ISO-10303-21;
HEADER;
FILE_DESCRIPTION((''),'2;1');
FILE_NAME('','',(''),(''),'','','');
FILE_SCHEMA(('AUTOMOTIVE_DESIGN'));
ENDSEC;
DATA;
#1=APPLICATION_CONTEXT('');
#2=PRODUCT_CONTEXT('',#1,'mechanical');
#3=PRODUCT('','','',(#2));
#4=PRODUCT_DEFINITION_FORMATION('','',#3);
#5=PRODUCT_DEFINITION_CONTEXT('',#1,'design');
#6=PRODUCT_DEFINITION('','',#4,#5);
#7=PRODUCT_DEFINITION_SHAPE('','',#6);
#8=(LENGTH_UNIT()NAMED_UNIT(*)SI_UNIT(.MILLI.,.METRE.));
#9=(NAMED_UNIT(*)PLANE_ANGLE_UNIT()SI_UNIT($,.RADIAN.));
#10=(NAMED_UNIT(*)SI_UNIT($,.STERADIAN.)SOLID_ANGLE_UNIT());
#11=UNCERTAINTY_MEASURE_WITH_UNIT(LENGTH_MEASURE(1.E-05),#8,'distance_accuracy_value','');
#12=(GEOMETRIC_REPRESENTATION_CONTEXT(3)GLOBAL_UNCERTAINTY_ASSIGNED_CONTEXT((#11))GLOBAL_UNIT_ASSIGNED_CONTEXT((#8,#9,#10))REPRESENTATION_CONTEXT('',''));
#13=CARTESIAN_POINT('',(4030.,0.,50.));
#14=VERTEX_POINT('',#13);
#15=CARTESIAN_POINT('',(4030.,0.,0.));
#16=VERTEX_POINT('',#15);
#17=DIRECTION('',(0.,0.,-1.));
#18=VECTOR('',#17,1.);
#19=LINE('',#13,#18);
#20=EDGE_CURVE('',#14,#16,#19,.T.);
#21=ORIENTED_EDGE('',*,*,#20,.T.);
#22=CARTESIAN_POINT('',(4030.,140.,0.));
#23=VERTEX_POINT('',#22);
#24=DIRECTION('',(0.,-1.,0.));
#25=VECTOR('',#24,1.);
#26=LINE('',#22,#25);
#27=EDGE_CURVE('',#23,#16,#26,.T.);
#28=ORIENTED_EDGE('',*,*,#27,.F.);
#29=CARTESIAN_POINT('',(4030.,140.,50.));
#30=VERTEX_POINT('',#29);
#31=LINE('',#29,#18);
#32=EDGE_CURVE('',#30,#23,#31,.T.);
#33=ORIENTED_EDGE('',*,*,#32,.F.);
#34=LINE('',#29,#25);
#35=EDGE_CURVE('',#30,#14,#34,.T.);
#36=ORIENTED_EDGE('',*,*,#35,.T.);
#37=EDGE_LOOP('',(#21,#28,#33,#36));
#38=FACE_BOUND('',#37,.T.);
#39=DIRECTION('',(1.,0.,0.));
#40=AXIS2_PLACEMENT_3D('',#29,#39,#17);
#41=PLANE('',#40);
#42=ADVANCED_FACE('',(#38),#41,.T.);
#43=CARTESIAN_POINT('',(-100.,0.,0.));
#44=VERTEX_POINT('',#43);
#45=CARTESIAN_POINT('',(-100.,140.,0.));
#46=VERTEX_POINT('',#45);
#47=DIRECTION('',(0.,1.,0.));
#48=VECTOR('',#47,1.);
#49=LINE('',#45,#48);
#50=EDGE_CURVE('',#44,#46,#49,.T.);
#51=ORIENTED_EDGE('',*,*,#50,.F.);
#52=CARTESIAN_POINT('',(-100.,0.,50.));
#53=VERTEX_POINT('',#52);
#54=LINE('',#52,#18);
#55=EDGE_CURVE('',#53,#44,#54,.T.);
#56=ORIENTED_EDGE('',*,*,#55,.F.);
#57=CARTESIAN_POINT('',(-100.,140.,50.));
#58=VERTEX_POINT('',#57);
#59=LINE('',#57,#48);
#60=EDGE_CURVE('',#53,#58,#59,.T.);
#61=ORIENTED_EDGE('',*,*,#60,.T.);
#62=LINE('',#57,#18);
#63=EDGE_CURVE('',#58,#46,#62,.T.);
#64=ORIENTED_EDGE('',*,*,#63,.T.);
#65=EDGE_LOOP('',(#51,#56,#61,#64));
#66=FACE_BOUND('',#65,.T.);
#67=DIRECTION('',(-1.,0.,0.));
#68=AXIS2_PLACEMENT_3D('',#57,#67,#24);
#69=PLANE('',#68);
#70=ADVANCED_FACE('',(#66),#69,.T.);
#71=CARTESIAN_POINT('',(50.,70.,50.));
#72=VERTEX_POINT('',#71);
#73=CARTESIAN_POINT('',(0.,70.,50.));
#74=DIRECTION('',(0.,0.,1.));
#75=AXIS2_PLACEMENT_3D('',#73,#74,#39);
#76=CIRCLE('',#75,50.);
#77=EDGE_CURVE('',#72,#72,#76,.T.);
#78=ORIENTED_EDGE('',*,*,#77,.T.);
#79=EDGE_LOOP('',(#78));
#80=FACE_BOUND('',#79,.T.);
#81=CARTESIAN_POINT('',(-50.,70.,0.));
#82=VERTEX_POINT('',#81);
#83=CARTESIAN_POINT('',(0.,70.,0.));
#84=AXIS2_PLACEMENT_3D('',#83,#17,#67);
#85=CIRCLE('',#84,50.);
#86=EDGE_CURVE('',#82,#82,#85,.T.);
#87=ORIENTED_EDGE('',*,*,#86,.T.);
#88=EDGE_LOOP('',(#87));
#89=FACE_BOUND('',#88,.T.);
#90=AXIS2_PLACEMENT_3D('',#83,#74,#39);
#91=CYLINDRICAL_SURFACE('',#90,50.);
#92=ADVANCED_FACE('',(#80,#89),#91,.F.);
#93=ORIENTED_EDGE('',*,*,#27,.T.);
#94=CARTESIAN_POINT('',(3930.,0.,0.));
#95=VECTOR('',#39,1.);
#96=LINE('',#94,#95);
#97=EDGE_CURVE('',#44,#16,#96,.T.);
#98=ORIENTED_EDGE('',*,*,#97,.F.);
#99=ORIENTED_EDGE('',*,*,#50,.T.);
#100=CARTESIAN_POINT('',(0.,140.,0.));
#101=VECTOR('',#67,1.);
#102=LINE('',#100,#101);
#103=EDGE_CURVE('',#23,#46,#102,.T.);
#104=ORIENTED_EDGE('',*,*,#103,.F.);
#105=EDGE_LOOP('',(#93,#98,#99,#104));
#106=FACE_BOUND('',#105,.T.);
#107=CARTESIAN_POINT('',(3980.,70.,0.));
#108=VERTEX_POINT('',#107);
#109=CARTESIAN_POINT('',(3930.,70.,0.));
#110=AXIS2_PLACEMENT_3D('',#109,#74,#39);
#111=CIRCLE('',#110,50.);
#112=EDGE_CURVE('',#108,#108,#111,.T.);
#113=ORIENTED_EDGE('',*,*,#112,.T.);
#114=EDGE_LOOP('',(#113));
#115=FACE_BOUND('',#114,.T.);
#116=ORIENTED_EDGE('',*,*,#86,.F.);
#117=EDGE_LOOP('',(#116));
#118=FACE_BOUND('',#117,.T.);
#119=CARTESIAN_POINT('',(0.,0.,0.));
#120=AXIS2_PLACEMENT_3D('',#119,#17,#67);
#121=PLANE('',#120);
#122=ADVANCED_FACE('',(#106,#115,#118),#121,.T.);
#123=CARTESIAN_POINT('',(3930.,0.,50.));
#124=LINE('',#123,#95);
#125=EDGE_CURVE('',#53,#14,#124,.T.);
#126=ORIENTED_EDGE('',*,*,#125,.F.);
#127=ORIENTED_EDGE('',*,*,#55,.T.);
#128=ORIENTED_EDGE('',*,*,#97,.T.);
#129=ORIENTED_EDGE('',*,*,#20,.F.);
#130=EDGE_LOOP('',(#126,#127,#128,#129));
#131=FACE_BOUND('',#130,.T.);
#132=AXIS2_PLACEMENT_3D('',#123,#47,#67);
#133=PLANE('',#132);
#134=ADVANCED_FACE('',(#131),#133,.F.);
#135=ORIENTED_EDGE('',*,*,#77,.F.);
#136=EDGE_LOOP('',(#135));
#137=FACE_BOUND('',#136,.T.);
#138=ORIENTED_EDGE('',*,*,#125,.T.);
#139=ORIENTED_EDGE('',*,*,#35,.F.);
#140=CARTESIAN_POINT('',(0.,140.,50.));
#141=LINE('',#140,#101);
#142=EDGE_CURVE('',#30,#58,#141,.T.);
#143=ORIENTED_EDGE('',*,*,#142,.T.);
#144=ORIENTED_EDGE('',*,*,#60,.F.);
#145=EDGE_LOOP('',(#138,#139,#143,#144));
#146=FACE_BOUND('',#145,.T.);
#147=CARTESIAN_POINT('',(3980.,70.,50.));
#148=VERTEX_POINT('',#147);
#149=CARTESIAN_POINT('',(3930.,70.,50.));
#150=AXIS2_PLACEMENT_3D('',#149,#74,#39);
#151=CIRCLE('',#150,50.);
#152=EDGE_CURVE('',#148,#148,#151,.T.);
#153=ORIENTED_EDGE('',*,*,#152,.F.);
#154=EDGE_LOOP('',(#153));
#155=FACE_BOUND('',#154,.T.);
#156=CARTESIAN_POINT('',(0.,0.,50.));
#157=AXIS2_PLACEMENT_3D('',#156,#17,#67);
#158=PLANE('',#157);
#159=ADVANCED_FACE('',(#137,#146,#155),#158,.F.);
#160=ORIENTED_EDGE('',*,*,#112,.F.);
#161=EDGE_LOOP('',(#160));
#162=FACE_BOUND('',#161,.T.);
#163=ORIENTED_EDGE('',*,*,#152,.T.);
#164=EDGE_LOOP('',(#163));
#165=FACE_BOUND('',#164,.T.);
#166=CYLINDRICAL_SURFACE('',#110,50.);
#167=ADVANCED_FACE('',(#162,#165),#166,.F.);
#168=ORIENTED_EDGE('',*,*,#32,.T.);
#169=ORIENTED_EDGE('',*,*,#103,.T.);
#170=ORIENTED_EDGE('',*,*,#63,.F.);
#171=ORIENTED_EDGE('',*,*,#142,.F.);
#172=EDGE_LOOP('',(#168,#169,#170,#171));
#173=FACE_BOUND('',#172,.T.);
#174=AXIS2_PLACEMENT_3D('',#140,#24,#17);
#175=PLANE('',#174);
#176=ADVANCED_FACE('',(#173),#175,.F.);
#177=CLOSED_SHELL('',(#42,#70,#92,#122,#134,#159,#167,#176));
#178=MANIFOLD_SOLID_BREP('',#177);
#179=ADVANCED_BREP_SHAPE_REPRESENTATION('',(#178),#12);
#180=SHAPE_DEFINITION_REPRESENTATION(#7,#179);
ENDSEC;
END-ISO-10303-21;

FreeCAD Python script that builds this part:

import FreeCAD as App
import Part
import Sketcher

V = App.Vector
Q = App.Units.Quantity


def add_polygon(sketch, points):
    """Adds a closed chain of lines whose ends are joined by coincident constraints."""
    first, n = sketch.GeometryCount, len(points)
    for a, b in zip(points, points[1:] + points[:1]):
        sketch.addGeometry(Part.LineSegment(App.Vector(*a, 0), App.Vector(*b, 0)), False)
    for i in range(n):
        sketch.addConstraint(Sketcher.Constraint("Coincident", first + i, 2, first + (i + 1) % n, 1))

doc = App.newDocument("Part")
body = doc.addObject("PartDesign::Body", "Body")

sketch1 = body.newObject("Sketcher::SketchObject", "Sketch")
sketch1.AttachmentSupport = (doc.getObject("XY_Plane"), [""])
sketch1.MapMode = "FlatFace"
add_polygon(sketch1, [(0, 140), (0, 0), (3930, 0), (3930, 140)])
sketch1.addConstraint(Sketcher.Constraint("Vertical", 0))
sketch1.addConstraint(Sketcher.Constraint("Horizontal", 1))
sketch1.addConstraint(Sketcher.Constraint("Vertical", 2))
sketch1.addConstraint(Sketcher.Constraint("Horizontal", 3))
sketch1.addConstraint(Sketcher.Constraint("Coincident", 0, 2, -1, 1))
sketch1.addConstraint(Sketcher.Constraint("DistanceX", 1, 1, 1, 2, Q("3930 mm")))
sketch1.addConstraint(Sketcher.Constraint("DistanceY", 0, 2, 0, 1, Q("140 mm")))
pad1 = body.newObject("PartDesign::Pad", "Pad")
pad1.Profile = sketch1
pad1.Length = 50

sketch2 = body.newObject("Sketcher::SketchObject", "Sketch001")
sketch2.AttachmentSupport = (doc.getObject("XY_Plane"), [""])
sketch2.MapMode = "FlatFace"
sketch2.AttachmentOffset = App.Placement(V(0, 0, 50), App.Rotation())
sketch2.addGeometry(Part.Circle(V(3930, 70, 0), V(0, 0, 1), 50), False)
sketch2.addGeometry(Part.Circle(V(0, 70, 0), V(0, 0, 1), 50), False)
sketch2.addConstraint(Sketcher.Constraint("Equal", 0, 1))
sketch2.addConstraint(Sketcher.Constraint("PointOnObject", 1, 3, -2))
sketch2.addConstraint(Sketcher.Constraint("Horizontal", 0, 3, 1, 3))
sketch2.addConstraint(Sketcher.Constraint("Diameter", 0, Q("100 mm")))
sketch2.addConstraint(Sketcher.Constraint("DistanceX", -1, 1, 0, 3, Q("3930 mm")))
sketch2.addConstraint(Sketcher.Constraint("DistanceY", -1, 1, 0, 3, Q("70 mm")))
pocket1 = body.newObject("PartDesign::Pocket", "Pocket")
pocket1.Profile = sketch2
pocket1.Length = 50

sketch3 = body.newObject("Sketcher::SketchObject", "Sketch002")
sketch3.AttachmentSupport = (doc.getObject("XY_Plane"), [""])
sketch3.MapMode = "FlatFace"
add_polygon(sketch3, [(4030, 140), (4030, 0), (3930, 0), (3930, 140)])
add_polygon(sketch3, [(0, 140), (0, 0), (-100, 0), (-100, 140)])
sketch3.addConstraint(Sketcher.Constraint("Vertical", 0))
sketch3.addConstraint(Sketcher.Constraint("Horizontal", 1))
sketch3.addConstraint(Sketcher.Constraint("Vertical", 2))
sketch3.addConstraint(Sketcher.Constraint("Horizontal", 3))
sketch3.addConstraint(Sketcher.Constraint("Vertical", 4))
sketch3.addConstraint(Sketcher.Constraint("Horizontal", 5))
sketch3.addConstraint(Sketcher.Constraint("Vertical", 6))
sketch3.addConstraint(Sketcher.Constraint("Horizontal", 7))
sketch3.addConstraint(Sketcher.Constraint("Coincident", 4, 2, -1, 1))
sketch3.addConstraint(Sketcher.Constraint("PointOnObject", 0, 2, -1))
sketch3.addConstraint(Sketcher.Constraint("Horizontal", 3, 2, 6, 2))
sketch3.addConstraint(Sketcher.Constraint("Equal", 3, 5))
sketch3.addConstraint(Sketcher.Constraint("DistanceX", 1, 2, 1, 1, Q("100 mm")))
sketch3.addConstraint(Sketcher.Constraint("DistanceY", 0, 2, 0, 1, Q("140 mm")))
sketch3.addConstraint(Sketcher.Constraint("DistanceX", -1, 1, 0, 2, Q("4030 mm")))
pad2 = body.newObject("PartDesign::Pad", "Pad001")
pad2.Profile = sketch3
pad2.Length = 50

sketch4 = body.newObject("Sketcher::SketchObject", "Sketch003")
sketch4.AttachmentSupport = (doc.getObject("XY_Plane"), [""])
sketch4.MapMode = "FlatFace"
sketch4.addGeometry(Part.Circle(V(0, 70, 0), V(0, 0, 1), 50), False)
sketch4.addGeometry(Part.Circle(V(3930, 70, 0), V(0, 0, 1), 50), False)
sketch4.addConstraint(Sketcher.Constraint("Equal", 0, 1))
sketch4.addConstraint(Sketcher.Constraint("PointOnObject", 0, 3, -2))
sketch4.addConstraint(Sketcher.Constraint("Horizontal", 0, 3, 1, 3))
sketch4.addConstraint(Sketcher.Constraint("Diameter", 0, Q("100 mm")))
sketch4.addConstraint(Sketcher.Constraint("DistanceY", -1, 1, 0, 3, Q("70 mm")))
sketch4.addConstraint(Sketcher.Constraint("DistanceX", -1, 1, 1, 3, Q("3930 mm")))
pocket2 = body.newObject("PartDesign::Pocket", "Pocket001")
pocket2.Profile = sketch4
pocket2.Type = "ThroughAll"
pocket2.Reversed = True

doc.recompute()
